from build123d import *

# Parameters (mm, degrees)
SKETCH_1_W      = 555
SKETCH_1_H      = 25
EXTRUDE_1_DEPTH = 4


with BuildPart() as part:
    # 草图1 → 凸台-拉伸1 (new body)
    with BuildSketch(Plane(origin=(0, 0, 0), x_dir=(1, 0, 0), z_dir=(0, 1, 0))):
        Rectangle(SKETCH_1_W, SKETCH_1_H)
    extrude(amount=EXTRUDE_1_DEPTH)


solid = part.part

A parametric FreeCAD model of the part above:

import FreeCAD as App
import Part
import Sketcher

V = App.Vector

doc = App.newDocument("Part")
params = doc.addObject("Spreadsheet::Sheet", "Params")
for row, (alias, value) in enumerate([
    ("sketch1_width", "555 mm"),
    ("sketch1_height", "25 mm"),
    ("pad1_length", "4 mm"),
], start=1):
    params.set(f"A{row}", alias)
    params.set(f"B{row}", "=" + value)
    params.setAlias(f"B{row}", alias)

body = doc.addObject("PartDesign::Body", "Body")

sketch1 = body.newObject("Sketcher::SketchObject", "Sketch")
sketch1.AttachmentSupport = (doc.getObject("XZ_Plane"), [""])
sketch1.MapMode = "FlatFace"
sketch1.addGeometry(Part.LineSegment(V(-278, -12, 0), V(-278, 12, 0)), False)
sketch1.addGeometry(Part.LineSegment(V(-278, 12, 0), V(278, 12, 0)), False)
sketch1.addGeometry(Part.LineSegment(V(278, 12, 0), V(278, -12, 0)), False)
sketch1.addGeometry(Part.LineSegment(V(278, -12, 0), V(-278, -12, 0)), False)
sketch1.addConstraint(Sketcher.Constraint("Coincident", 0, 2, 1, 1))
sketch1.addConstraint(Sketcher.Constraint("Coincident", 1, 2, 2, 1))
sketch1.addConstraint(Sketcher.Constraint("Coincident", 2, 2, 3, 1))
sketch1.addConstraint(Sketcher.Constraint("Coincident", 3, 2, 0, 1))
sketch1.addConstraint(Sketcher.Constraint("Vertical", 0))
sketch1.addConstraint(Sketcher.Constraint("Horizontal", 1))
sketch1.addConstraint(Sketcher.Constraint("Vertical", 2))
sketch1.addConstraint(Sketcher.Constraint("Horizontal", 3))
sketch1.addConstraint(Sketcher.Constraint("Symmetric", 0, 2, 2, 2, -1, 1))
sketch1.addConstraint(Sketcher.Constraint("DistanceX", 1, 1, 1, 2, 555.0))
sketch1.addConstraint(Sketcher.Constraint("DistanceY", 0, 1, 0, 2, 25.0))
sketch1.setExpression("Constraints[9]", "Params.sketch1_width")
sketch1.setExpression("Constraints[10]", "Params.sketch1_height")
pad1 = body.newObject("PartDesign::Pad", "Pad")
pad1.Profile = sketch1
pad1.setExpression("Length", "Params.pad1_length")
pad1.Reversed = True

doc.recompute()
